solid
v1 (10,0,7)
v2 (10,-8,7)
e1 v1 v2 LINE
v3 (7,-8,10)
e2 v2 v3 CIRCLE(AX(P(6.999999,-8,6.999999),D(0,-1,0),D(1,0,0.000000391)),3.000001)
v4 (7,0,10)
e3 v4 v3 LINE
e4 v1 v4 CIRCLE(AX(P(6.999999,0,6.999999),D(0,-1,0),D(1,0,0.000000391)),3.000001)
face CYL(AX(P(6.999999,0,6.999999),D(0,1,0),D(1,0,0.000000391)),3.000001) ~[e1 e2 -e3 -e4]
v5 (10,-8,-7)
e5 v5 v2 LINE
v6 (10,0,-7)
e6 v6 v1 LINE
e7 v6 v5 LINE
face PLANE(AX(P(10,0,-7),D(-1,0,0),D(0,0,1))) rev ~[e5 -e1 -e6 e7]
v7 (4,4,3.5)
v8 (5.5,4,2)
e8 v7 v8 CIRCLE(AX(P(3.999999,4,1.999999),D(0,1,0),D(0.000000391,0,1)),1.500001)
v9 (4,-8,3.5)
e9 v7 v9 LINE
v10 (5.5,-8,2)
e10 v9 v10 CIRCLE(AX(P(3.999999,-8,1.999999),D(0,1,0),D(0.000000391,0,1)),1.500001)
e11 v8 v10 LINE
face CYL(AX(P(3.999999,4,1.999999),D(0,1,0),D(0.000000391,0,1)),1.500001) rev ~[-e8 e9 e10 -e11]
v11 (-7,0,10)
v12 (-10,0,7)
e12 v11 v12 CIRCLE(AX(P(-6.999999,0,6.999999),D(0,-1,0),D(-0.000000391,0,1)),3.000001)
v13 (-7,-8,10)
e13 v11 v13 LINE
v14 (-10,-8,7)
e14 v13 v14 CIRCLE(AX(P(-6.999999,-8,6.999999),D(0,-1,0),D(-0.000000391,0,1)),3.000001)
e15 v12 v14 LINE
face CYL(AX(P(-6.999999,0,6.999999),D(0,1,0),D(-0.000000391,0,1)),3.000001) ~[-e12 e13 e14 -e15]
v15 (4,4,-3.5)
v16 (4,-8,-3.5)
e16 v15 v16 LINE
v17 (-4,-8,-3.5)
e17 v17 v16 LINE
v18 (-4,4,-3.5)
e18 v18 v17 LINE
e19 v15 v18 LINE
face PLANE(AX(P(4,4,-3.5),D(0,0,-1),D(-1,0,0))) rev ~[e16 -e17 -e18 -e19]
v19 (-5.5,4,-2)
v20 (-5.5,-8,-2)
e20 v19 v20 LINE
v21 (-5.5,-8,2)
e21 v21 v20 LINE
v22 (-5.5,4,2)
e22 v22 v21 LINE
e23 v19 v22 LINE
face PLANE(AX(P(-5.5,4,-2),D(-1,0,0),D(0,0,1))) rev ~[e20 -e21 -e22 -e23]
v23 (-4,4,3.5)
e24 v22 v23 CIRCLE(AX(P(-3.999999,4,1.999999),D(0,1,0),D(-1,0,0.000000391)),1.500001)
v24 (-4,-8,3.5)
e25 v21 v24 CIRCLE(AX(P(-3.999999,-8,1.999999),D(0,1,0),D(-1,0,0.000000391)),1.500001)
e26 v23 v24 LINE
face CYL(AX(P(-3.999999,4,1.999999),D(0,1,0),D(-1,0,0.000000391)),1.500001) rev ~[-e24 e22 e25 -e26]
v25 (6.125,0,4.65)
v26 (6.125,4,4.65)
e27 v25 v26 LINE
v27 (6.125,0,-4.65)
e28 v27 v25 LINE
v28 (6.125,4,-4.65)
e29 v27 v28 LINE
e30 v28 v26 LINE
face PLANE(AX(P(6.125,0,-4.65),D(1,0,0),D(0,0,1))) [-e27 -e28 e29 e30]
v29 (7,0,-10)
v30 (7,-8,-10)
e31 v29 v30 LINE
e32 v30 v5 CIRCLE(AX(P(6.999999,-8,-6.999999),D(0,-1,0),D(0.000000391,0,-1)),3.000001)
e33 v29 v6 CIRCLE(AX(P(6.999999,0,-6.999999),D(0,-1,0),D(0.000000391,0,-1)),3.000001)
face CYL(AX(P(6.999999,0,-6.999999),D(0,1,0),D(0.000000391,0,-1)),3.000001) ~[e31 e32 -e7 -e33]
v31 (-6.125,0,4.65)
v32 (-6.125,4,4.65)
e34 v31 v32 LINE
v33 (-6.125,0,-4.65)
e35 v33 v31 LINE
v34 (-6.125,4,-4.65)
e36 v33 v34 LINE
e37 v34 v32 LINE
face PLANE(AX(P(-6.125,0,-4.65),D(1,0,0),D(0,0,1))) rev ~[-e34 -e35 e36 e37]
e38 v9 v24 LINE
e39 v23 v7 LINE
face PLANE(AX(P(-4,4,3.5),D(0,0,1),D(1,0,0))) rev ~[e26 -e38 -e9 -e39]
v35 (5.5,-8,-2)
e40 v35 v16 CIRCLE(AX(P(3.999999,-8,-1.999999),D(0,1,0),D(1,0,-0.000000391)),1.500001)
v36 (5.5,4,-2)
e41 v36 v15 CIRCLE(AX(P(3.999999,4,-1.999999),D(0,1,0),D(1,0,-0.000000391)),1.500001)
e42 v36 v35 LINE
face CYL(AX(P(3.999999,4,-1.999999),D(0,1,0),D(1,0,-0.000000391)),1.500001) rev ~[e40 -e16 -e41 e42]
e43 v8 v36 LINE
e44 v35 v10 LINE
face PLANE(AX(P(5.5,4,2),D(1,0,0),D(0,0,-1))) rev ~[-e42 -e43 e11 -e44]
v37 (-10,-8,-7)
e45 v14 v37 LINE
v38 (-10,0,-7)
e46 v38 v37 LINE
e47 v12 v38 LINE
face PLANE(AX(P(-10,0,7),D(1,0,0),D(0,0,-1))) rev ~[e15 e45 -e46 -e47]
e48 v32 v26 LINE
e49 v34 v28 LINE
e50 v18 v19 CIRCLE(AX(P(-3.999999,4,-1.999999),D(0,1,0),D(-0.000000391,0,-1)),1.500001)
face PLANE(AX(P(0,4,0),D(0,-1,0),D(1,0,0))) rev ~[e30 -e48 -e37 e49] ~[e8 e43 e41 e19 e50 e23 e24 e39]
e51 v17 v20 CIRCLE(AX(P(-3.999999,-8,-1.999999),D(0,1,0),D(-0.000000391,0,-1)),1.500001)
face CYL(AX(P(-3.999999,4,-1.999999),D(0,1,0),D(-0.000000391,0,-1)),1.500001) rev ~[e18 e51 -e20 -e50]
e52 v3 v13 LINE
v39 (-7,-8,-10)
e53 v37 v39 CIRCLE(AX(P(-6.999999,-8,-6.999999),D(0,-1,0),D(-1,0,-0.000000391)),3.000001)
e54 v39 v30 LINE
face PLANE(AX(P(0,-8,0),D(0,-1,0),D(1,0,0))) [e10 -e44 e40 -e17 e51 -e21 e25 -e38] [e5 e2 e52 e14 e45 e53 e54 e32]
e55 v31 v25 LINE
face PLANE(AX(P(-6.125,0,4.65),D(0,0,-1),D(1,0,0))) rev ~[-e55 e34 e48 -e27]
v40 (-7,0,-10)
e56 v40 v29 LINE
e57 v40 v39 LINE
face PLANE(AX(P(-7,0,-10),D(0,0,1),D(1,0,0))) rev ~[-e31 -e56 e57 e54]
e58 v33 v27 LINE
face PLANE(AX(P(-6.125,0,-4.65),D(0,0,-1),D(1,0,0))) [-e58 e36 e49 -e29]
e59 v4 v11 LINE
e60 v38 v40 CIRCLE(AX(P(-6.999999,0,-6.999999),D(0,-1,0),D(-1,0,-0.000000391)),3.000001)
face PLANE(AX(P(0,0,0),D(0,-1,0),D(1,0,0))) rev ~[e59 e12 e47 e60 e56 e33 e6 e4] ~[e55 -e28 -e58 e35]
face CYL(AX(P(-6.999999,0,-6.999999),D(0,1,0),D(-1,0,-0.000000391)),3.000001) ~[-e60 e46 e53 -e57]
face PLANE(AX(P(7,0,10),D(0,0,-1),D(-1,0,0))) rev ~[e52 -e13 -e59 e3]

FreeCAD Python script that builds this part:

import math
import FreeCAD as App
import Part
import Sketcher
from FreeCAD import Vector


def add_polygon(sketch, points):
    """Adds a closed chain of lines whose ends are joined by coincident constraints."""
    first, n = sketch.GeometryCount, len(points)
    for a, b in zip(points, points[1:] + points[:1]):
        sketch.addGeometry(Part.LineSegment(App.Vector(*a, 0), App.Vector(*b, 0)), False)
    for i in range(n):
        sketch.addConstraint(Sketcher.Constraint("Coincident", first + i, 2, first + (i + 1) % n, 1))

doc = App.newDocument("Part")
body = doc.addObject("PartDesign::Body", "Body")

# Sketch on XZ plane
sketch1 = doc.addObject("Sketcher::SketchObject", "Sketch")
body.addObject(sketch1)
sketch1.AttachmentSupport = (doc.XZ_Plane, [""])
sketch1.MapMode = "FlatFace"
sketch1.addGeometry([
    Part.ArcOfCircle(Part.Circle(Vector(6.999999, 6.999999, 0), Vector(0, 0, 1), 3.000001), math.radians(0.000022), math.radians(89.999978)),  # 0
    Part.LineSegment(Vector(7, 10, 0), Vector(-7, 10, 0)),  # 1
    Part.ArcOfCircle(Part.Circle(Vector(-6.999999, 6.999999, 0), Vector(0, 0, 1), 3.000001), math.radians(90.000022), math.radians(179.999978)),  # 2
    Part.LineSegment(Vector(-10, 7, 0), Vector(-10, -7, 0)),  # 3
    Part.ArcOfCircle(Part.Circle(Vector(-6.999999, -6.999999, 0), Vector(0, 0, 1), 3.000001), math.radians(-179.999978), math.radians(-90.000022)),  # 4
    Part.LineSegment(Vector(-7, -10, 0), Vector(7, -10, 0)),  # 5
    Part.ArcOfCircle(Part.Circle(Vector(6.999999, -6.999999, 0), Vector(0, 0, 1), 3.000001), math.radians(-89.999978), math.radians(-0.000022)),  # 6
    Part.LineSegment(Vector(10, -7, 0), Vector(10, 7, 0)),  # 7
], False)
sketch1.addConstraint([
    Sketcher.Constraint("Tangent", 0, 2, 1, 1),
    Sketcher.Constraint("Tangent", 1, 2, 2, 1),
    Sketcher.Constraint("Tangent", 2, 2, 3, 1),
    Sketcher.Constraint("Tangent", 3, 2, 4, 1),
    Sketcher.Constraint("Tangent", 4, 2, 5, 1),
    Sketcher.Constraint("Tangent", 5, 2, 6, 1),
    Sketcher.Constraint("Tangent", 6, 2, 7, 1),
    Sketcher.Constraint("Tangent", 7, 2, 0, 1),
    Sketcher.Constraint("Horizontal", 1),
    Sketcher.Constraint("Vertical", 3),
    Sketcher.Constraint("Horizontal", 5),
    Sketcher.Constraint("Vertical", 7),
    Sketcher.Constraint("Equal", 0, 2),
    Sketcher.Constraint("Equal", 2, 4),
    Sketcher.Constraint("Equal", 4, 6),
    Sketcher.Constraint("Symmetric", 0, 3, 4, 3, -1, 1),
    Sketcher.Constraint("Equal", 5, 3),
    Sketcher.Constraint("Radius", 0, 3.000001),
    Sketcher.Constraint("DistanceX", 1, 2, 1, 1, 14.0),
])
pad1 = doc.addObject("PartDesign::Pad", "Pad")
body.addObject(pad1)
pad1.Profile = sketch1
pad1.Length = 8

# Sketch on XZ plane
sketch2 = doc.addObject("Sketcher::SketchObject", "Sketch001")
body.addObject(sketch2)
sketch2.AttachmentSupport = (doc.XZ_Plane, [""])
sketch2.MapMode = "FlatFace"
add_polygon(sketch2, [(-6.125, 4.65), (-6.125, -4.65), (6.125, -4.65), (6.125, 4.65)])  # lines 0-3
sketch2.addConstraint([
    Sketcher.Constraint("Vertical", 0),
    Sketcher.Constraint("Horizontal", 1),
    Sketcher.Constraint("Vertical", 2),
    Sketcher.Constraint("Horizontal", 3),
    Sketcher.Constraint("Symmetric", 0, 2, 2, 2, -1, 1),
    Sketcher.Constraint("DistanceY", 0, 2, 0, 1, 9.3),
    Sketcher.Constraint("DistanceX", 1, 1, 1, 2, 12.25),
])
pad2 = doc.addObject("PartDesign::Pad", "Pad001")
body.addObject(pad2)
pad2.Profile = sketch2
pad2.Length = 4
pad2.Reversed = True

# Sketch on XZ plane
sketch3 = doc.addObject("Sketcher::SketchObject", "Sketch002")
body.addObject(sketch3)
sketch3.AttachmentSupport = (doc.XZ_Plane, [""])
sketch3.MapMode = "FlatFace"
sketch3.AttachmentOffset = App.Placement(Vector(0, 0, -4), App.Rotation())
sketch3.addGeometry([
    Part.ArcOfCircle(Part.Circle(Vector(-3.999999, 1.999999, 0), Vector(0, 0, 1), 1.500001), math.radians(90.000022), math.radians(179.999978)),  # 0
    Part.LineSegment(Vector(-4, 3.5, 0), Vector(4, 3.5, 0)),  # 1
    Part.ArcOfCircle(Part.Circle(Vector(3.999999, 1.999999, 0), Vector(0, 0, 1), 1.500001), math.radians(0.000022), math.radians(89.999978)),  # 2
    Part.LineSegment(Vector(5.5, 2, 0), Vector(5.5, -2, 0)),  # 3
    Part.ArcOfCircle(Part.Circle(Vector(3.999999, -1.999999, 0), Vector(0, 0, 1), 1.500001), math.radians(-89.999978), math.radians(-0.000022)),  # 4
    Part.LineSegment(Vector(4, -3.5, 0), Vector(-4, -3.5, 0)),  # 5
    Part.ArcOfCircle(Part.Circle(Vector(-3.999999, -1.999999, 0), Vector(0, 0, 1), 1.500001), math.radians(-179.999978), math.radians(-90.000022)),  # 6
    Part.LineSegment(Vector(-5.5, -2, 0), Vector(-5.5, 2, 0)),  # 7
], False)
sketch3.addConstraint([
    Sketcher.Constraint("Tangent", 0, 1, 1, 1),
    Sketcher.Constraint("Tangent", 1, 2, 2, 2),
    Sketcher.Constraint("Tangent", 2, 1, 3, 1),
    Sketcher.Constraint("Tangent", 3, 2, 4, 2),
    Sketcher.Constraint("Tangent", 4, 1, 5, 1),
    Sketcher.Constraint("Tangent", 5, 2, 6, 2),
    Sketcher.Constraint("Tangent", 6, 1, 7, 1),
    Sketcher.Constraint("Tangent", 7, 2, 0, 2),
    Sketcher.Constraint("Horizontal", 1),
    Sketcher.Constraint("Vertical", 3),
    Sketcher.Constraint("Horizontal", 5),
    Sketcher.Constraint("Vertical", 7),
    Sketcher.Constraint("Equal", 0, 2),
    Sketcher.Constraint("Equal", 2, 4),
    Sketcher.Constraint("Equal", 4, 6),
    Sketcher.Constraint("Symmetric", 0, 3, 4, 3, -1, 1),
    Sketcher.Constraint("Radius", 0, 1.500001),
    Sketcher.Constraint("DistanceX", 1, 1, 1, 2, 8.0),
    Sketcher.Constraint("DistanceY", 3, 2, 3, 1, 4.0),
])
pocket1 = doc.addObject("PartDesign::Pocket", "Pocket")
body.addObject(pocket1)
pocket1.Profile = sketch3
pocket1.Length = 25
pocket1.Reversed = True

doc.recompute()
